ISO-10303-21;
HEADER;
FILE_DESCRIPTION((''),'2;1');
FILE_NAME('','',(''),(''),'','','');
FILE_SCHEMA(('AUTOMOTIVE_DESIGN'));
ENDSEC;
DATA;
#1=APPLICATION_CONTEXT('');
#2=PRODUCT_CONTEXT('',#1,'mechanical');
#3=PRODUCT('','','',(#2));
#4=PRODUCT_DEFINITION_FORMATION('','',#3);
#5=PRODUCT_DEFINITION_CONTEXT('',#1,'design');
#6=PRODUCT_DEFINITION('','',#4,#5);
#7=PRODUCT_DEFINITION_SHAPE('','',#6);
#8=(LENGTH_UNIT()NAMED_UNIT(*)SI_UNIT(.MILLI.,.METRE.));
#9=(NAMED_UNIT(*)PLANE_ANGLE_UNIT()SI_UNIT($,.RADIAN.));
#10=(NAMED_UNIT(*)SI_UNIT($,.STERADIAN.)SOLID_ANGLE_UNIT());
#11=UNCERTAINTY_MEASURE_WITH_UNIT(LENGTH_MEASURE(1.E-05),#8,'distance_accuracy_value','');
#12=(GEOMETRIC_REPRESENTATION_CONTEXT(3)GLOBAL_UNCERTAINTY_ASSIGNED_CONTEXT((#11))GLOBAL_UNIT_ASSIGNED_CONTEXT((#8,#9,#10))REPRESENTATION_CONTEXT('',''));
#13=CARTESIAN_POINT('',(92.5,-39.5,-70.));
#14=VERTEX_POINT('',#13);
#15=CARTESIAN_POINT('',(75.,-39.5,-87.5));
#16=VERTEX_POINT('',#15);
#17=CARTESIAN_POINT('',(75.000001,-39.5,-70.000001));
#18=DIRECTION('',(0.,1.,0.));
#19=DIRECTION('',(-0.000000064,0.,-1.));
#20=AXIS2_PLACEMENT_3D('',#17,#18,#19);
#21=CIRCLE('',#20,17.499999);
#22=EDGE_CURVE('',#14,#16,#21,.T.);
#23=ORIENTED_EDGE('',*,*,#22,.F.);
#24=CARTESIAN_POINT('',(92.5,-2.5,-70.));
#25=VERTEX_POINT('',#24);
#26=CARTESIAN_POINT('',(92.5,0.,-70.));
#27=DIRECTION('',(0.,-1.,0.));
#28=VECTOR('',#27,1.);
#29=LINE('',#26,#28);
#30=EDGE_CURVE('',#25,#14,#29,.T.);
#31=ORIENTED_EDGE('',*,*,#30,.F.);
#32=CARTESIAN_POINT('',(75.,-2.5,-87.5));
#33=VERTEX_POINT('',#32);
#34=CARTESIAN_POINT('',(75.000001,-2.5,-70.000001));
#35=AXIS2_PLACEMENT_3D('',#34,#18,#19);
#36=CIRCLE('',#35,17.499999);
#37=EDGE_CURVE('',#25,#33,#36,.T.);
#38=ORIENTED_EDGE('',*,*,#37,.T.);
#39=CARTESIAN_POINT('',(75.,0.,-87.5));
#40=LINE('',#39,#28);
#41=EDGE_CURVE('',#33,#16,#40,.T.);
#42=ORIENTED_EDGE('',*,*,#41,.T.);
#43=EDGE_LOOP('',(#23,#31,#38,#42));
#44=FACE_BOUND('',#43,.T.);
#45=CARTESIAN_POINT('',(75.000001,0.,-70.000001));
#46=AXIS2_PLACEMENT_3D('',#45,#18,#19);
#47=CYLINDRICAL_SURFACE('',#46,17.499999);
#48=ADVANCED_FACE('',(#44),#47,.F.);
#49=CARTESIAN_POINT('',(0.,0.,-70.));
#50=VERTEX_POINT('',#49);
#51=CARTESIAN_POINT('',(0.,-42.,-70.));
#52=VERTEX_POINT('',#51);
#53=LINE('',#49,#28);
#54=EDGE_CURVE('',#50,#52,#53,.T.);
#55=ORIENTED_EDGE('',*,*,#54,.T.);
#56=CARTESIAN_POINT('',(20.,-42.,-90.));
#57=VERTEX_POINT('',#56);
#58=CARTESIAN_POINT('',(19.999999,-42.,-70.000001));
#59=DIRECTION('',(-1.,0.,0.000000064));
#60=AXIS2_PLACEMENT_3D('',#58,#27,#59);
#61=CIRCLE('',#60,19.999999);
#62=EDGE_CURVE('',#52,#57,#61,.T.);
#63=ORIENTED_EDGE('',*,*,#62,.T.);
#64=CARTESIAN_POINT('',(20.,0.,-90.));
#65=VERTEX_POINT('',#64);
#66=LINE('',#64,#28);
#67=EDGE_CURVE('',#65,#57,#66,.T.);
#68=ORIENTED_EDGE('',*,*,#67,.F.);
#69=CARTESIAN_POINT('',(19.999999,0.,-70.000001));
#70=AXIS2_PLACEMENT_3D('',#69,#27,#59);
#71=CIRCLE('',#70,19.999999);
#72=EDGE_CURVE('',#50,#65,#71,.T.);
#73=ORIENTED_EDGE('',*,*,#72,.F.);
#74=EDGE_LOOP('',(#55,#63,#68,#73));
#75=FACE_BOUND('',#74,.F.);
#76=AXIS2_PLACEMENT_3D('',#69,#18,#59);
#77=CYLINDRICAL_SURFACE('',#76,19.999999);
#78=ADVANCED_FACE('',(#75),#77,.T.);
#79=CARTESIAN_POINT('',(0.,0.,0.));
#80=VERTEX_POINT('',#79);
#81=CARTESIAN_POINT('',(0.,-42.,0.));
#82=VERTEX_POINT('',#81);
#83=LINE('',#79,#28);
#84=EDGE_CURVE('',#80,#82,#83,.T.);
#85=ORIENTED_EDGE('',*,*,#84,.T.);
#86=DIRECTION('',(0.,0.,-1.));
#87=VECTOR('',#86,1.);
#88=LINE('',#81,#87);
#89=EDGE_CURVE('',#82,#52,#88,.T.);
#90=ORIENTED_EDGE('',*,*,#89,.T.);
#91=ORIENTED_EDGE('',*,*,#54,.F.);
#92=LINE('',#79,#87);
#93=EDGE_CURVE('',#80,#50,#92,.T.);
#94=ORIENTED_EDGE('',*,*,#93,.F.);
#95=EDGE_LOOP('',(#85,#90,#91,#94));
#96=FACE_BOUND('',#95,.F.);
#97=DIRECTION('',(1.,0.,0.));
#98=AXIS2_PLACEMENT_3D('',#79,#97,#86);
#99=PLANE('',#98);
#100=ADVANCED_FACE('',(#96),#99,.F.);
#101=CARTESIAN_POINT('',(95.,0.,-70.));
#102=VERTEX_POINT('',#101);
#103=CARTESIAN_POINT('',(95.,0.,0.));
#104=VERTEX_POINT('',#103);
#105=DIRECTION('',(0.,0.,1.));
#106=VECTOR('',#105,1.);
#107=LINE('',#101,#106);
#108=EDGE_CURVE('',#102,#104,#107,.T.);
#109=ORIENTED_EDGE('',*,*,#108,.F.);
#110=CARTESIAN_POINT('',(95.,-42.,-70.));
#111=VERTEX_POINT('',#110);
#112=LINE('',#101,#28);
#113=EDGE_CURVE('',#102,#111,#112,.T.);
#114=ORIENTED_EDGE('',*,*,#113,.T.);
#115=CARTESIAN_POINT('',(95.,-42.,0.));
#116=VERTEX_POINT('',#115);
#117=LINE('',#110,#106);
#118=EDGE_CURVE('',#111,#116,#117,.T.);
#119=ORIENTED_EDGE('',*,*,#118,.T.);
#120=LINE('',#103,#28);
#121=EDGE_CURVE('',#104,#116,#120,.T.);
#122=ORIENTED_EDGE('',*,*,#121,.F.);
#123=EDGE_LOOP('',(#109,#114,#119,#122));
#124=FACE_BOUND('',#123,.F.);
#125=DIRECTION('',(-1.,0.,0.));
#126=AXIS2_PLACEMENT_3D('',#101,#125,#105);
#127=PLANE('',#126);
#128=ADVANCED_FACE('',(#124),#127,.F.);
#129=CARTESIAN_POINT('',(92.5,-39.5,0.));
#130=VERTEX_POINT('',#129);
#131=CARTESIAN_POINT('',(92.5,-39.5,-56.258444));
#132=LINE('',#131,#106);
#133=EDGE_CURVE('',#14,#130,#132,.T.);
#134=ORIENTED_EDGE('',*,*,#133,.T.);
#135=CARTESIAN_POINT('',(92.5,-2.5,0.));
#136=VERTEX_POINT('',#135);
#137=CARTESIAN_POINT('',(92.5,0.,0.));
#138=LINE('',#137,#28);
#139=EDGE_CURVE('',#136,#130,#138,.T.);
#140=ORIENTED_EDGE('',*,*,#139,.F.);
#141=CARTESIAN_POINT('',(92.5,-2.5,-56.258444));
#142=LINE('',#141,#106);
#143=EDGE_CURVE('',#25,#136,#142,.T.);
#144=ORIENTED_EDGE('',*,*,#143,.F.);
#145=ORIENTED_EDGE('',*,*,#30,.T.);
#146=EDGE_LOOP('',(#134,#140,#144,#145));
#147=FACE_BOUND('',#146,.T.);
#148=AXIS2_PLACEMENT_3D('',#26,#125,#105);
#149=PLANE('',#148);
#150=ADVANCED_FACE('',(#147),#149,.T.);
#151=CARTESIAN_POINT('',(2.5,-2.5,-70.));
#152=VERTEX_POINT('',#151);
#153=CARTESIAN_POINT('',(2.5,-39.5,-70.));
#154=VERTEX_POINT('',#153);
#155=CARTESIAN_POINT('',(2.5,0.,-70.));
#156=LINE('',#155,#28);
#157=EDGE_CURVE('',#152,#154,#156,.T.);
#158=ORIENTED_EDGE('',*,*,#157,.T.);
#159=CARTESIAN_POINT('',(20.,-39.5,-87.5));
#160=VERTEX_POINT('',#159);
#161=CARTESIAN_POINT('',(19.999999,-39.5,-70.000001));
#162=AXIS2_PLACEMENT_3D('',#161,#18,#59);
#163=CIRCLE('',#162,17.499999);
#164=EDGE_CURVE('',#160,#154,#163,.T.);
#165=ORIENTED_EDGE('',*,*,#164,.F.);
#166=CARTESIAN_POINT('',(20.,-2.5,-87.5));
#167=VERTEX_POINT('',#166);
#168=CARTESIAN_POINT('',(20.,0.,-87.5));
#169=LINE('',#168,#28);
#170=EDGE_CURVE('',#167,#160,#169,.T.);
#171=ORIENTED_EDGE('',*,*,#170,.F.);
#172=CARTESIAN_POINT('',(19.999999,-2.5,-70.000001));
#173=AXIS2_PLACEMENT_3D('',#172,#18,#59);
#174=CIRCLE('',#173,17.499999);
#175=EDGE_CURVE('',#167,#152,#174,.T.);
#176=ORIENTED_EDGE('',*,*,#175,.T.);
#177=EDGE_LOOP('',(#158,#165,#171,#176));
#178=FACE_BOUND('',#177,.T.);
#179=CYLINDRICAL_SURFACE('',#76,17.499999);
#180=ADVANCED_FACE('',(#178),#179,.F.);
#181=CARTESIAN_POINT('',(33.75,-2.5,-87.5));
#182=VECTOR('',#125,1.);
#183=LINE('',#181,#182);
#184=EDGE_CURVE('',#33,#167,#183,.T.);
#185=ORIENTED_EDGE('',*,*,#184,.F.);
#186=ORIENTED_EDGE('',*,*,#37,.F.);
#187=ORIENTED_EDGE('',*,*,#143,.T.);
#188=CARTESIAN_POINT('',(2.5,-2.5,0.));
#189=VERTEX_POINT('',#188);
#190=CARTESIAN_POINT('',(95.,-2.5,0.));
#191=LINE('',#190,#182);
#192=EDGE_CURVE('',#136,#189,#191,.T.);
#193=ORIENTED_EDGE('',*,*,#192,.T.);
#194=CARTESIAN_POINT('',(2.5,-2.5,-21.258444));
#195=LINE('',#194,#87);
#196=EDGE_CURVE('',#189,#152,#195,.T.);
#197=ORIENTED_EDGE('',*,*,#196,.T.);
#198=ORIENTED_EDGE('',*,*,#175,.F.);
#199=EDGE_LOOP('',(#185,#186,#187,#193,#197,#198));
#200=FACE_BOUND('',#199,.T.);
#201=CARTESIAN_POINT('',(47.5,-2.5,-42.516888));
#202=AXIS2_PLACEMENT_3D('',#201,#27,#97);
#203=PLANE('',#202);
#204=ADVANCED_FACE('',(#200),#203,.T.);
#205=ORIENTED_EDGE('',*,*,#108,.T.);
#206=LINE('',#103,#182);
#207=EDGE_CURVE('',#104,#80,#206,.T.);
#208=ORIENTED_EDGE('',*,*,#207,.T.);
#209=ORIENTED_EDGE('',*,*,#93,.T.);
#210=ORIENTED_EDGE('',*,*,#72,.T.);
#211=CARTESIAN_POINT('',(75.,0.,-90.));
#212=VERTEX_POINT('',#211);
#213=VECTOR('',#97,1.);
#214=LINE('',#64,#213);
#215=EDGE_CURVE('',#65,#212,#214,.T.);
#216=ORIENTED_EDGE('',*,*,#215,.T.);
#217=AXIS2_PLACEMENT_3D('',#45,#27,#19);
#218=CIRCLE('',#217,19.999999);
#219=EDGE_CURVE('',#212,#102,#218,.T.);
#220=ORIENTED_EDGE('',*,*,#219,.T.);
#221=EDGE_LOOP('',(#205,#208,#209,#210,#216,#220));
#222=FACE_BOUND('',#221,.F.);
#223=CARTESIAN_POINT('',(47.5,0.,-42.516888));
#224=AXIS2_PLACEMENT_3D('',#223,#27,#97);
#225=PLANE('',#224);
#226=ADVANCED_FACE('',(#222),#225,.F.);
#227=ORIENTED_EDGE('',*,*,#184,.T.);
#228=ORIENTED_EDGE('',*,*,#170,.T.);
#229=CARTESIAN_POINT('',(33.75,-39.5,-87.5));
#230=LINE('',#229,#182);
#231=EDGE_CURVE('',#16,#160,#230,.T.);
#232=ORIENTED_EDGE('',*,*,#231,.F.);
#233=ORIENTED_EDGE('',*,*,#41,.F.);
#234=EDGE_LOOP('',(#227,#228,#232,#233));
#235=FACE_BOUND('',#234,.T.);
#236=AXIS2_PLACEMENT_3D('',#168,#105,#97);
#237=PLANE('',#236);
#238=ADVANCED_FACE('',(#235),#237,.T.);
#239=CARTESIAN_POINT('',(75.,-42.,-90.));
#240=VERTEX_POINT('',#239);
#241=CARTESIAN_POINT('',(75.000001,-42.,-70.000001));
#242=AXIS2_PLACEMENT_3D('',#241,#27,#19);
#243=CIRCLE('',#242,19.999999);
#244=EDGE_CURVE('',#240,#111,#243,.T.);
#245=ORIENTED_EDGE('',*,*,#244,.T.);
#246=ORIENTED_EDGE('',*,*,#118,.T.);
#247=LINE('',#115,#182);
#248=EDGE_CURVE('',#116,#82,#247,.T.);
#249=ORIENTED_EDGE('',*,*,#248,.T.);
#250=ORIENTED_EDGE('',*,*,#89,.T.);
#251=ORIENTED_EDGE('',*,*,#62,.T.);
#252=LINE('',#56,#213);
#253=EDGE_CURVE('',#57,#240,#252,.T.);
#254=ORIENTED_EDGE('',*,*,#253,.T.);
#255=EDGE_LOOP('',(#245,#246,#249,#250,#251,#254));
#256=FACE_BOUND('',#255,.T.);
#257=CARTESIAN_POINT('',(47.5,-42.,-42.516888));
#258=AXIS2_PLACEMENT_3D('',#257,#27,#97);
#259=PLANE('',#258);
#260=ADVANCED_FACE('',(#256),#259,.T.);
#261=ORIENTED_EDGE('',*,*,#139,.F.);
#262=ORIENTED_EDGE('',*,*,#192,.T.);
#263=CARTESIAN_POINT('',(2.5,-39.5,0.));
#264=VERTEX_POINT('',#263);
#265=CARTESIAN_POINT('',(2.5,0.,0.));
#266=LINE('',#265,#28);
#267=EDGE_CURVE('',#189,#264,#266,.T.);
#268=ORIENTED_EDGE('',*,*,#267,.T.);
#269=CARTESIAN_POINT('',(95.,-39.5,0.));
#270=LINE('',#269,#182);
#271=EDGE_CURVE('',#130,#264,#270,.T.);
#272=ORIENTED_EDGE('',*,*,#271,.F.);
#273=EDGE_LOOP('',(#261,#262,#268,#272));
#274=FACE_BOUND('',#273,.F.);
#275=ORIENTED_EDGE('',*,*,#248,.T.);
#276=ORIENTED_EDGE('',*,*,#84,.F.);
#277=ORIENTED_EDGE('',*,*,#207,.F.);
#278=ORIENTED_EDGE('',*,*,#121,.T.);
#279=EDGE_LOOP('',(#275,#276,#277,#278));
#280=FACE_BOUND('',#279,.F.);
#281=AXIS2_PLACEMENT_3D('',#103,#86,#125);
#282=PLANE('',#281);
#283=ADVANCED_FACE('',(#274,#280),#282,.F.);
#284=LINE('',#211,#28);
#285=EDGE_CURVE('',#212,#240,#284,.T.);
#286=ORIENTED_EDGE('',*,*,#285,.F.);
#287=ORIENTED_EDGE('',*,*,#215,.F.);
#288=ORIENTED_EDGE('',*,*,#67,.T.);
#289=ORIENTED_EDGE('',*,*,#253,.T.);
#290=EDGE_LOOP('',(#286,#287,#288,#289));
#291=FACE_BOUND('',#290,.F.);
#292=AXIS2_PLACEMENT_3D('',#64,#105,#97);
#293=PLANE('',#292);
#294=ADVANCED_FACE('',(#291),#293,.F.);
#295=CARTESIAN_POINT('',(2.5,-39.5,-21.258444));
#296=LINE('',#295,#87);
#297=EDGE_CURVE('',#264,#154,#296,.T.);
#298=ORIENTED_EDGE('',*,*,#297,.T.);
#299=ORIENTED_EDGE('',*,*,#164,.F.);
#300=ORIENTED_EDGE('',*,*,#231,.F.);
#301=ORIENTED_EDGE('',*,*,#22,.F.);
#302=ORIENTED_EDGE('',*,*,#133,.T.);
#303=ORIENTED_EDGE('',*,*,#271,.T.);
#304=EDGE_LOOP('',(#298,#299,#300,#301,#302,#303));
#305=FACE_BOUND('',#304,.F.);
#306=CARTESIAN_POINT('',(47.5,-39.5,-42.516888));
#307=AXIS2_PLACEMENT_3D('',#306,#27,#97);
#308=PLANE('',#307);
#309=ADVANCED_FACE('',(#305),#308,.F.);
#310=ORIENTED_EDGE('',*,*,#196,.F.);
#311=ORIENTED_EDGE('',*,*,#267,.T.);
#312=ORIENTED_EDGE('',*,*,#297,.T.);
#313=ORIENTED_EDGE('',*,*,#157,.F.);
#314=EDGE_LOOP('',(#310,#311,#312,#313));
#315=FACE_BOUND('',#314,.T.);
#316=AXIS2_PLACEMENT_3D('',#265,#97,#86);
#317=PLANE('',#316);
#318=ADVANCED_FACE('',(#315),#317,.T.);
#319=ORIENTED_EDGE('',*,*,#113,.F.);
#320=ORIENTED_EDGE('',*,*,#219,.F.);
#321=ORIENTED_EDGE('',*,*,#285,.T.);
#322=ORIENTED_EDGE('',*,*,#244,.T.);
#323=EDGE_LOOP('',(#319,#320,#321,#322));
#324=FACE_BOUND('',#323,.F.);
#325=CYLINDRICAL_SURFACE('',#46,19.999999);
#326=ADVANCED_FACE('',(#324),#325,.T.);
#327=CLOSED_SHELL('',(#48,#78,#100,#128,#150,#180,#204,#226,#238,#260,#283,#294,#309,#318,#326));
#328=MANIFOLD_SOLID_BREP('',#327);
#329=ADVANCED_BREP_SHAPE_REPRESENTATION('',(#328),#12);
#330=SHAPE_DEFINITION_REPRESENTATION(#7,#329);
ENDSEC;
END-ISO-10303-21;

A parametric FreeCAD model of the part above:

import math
import FreeCAD as App
import Part
import Sketcher

V = App.Vector


def faces_at(feature, points):
    """Names of the faces that lie closest to the given points."""
    faces = feature.Shape.Faces
    near = lambda p: min(range(len(faces)), key=lambda i: faces[i].distToShape(Part.Vertex(*p))[0])
    return sorted({f"Face{near(p) + 1}" for p in points})

doc = App.newDocument("Part")
body = doc.addObject("PartDesign::Body", "Body")

# Sketch on XZ plane
sketch1 = body.newObject("Sketcher::SketchObject", "Sketch")
sketch1.AttachmentSupport = (doc.getObject("XZ_Plane"), [""])
sketch1.MapMode = "FlatFace"
sketch1.addGeometry(Part.LineSegment(V(95, 0, 0), V(0, 0, 0)), False)
sketch1.addGeometry(Part.LineSegment(V(0, 0, 0), V(0, -70, 0)), False)
sketch1.addGeometry(Part.ArcOfCircle(Part.Circle(V(20, -70, 0), V(0, 0, 1), 20), math.radians(180), math.radians(270)), False)
sketch1.addGeometry(Part.LineSegment(V(20, -90, 0), V(75, -90, 0)), False)
sketch1.addGeometry(Part.ArcOfCircle(Part.Circle(V(75, -70, 0), V(0, 0, 1), 20), math.radians(-90), math.radians(0)), False)
sketch1.addGeometry(Part.LineSegment(V(95, -70, 0), V(95, 0, 0)), False)
sketch1.addConstraint(Sketcher.Constraint("Coincident", 0, 2, 1, 1))
sketch1.addConstraint(Sketcher.Constraint("Tangent", 1, 2, 2, 1))
sketch1.addConstraint(Sketcher.Constraint("Tangent", 2, 2, 3, 1))
sketch1.addConstraint(Sketcher.Constraint("Tangent", 3, 2, 4, 1))
sketch1.addConstraint(Sketcher.Constraint("Tangent", 4, 2, 5, 1))
sketch1.addConstraint(Sketcher.Constraint("Coincident", 5, 2, 0, 1))
sketch1.addConstraint(Sketcher.Constraint("Horizontal", 0))
sketch1.addConstraint(Sketcher.Constraint("Vertical", 1))
sketch1.addConstraint(Sketcher.Constraint("Horizontal", 3))
sketch1.addConstraint(Sketcher.Constraint("Vertical", 5))
sketch1.addConstraint(Sketcher.Constraint("Coincident", 0, 2, -1, 1))
sketch1.addConstraint(Sketcher.Constraint("Equal", 2, 4))
sketch1.addConstraint(Sketcher.Constraint("Radius", 2, 19.999999))
sketch1.addConstraint(Sketcher.Constraint("DistanceX", 0, 2, 0, 1, 95.0))
sketch1.addConstraint(Sketcher.Constraint("DistanceY", 1, 2, 1, 1, 70.0))
pad1 = body.newObject("PartDesign::Pad", "Pad")
pad1.Profile = sketch1
pad1.Length = 42
doc.recompute()

thickness = body.newObject("PartDesign::Thickness", "Thickness")
thickness.Base = (pad1, faces_at(pad1, [(47.5, -21, 0)]))
thickness.Value = 2.5
thickness.Reversed = True
thickness.Join = "Arc"

doc.recompute()
